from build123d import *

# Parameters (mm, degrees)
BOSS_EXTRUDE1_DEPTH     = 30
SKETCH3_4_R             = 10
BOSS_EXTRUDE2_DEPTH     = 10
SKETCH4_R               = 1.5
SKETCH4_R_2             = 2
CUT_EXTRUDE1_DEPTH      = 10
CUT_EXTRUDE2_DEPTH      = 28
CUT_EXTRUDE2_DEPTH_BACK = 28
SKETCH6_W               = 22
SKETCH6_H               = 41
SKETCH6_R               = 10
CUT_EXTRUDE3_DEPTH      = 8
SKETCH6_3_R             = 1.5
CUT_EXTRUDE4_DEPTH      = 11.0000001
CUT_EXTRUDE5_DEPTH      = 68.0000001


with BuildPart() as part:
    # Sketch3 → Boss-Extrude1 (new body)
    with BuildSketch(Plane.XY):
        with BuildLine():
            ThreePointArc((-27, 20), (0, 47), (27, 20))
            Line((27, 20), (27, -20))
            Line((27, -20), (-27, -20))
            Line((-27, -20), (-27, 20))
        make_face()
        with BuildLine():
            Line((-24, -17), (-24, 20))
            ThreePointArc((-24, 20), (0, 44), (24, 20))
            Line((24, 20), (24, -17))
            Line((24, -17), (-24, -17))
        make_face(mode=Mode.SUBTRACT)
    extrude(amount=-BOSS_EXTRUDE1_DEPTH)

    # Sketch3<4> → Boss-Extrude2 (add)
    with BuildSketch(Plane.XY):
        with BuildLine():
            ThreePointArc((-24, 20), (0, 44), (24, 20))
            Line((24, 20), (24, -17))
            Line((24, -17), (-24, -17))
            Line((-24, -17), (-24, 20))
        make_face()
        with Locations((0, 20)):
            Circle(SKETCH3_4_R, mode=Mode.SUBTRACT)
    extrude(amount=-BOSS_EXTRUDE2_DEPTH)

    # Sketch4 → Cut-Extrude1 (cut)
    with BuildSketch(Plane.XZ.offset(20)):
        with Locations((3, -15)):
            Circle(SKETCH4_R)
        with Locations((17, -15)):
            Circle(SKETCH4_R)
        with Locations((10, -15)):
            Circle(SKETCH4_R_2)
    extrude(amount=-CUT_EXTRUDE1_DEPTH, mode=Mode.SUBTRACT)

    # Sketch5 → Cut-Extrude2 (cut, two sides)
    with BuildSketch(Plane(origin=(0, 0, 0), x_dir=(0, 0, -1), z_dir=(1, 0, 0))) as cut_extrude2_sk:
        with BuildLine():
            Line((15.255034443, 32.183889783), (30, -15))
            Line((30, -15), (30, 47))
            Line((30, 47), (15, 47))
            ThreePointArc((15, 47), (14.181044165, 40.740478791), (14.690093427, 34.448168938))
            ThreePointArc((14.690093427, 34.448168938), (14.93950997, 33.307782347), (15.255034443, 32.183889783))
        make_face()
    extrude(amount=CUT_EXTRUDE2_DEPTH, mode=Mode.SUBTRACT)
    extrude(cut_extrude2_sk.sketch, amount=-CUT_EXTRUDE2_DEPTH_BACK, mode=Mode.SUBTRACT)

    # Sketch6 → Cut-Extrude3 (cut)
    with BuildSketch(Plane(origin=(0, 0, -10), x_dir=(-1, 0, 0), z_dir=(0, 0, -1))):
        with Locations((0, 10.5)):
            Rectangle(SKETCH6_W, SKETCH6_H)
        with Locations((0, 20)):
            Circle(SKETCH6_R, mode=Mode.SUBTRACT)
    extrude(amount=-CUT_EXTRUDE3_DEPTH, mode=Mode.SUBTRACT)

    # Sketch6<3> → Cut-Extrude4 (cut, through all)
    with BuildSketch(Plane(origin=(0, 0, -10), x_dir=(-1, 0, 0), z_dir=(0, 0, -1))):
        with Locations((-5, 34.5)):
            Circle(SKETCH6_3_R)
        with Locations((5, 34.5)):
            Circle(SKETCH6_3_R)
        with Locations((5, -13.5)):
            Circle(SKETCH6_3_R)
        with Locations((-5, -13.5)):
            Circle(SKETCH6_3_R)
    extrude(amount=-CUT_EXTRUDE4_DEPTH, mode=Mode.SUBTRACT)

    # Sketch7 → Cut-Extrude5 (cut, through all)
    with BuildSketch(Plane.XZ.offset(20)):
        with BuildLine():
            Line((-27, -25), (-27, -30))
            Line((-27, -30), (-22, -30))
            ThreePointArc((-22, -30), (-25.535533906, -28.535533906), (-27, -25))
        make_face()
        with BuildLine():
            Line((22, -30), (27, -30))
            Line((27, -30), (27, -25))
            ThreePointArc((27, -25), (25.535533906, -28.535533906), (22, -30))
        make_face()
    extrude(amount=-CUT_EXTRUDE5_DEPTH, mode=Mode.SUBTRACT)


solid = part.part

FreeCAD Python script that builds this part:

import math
import FreeCAD as App
import Part
import Sketcher
from FreeCAD import Vector

doc = App.newDocument("Part")
body = doc.addObject("PartDesign::Body", "Body")

sketch1 = doc.addObject("Sketcher::SketchObject", "Sketch")
body.addObject(sketch1)
sketch1.AttachmentSupport = (doc.XY_Plane, [""])
sketch1.MapMode = "FlatFace"
sketch1.addGeometry(Part.ArcOfCircle(Part.Circle(Vector(0, 20, 0), Vector(0, 0, 1), 27), math.radians(0), math.radians(180)), False)
sketch1.addGeometry(Part.LineSegment(Vector(-27, 20, 0), Vector(-27, -20, 0)), False)
sketch1.addGeometry(Part.LineSegment(Vector(-27, -20, 0), Vector(27, -20, 0)), False)
sketch1.addGeometry(Part.LineSegment(Vector(27, -20, 0), Vector(27, 20, 0)), False)
sketch1.addGeometry(Part.LineSegment(Vector(-24, -17, 0), Vector(-24, 20, 0)), False)
sketch1.addGeometry(Part.ArcOfCircle(Part.Circle(Vector(0, 20, 0), Vector(0, 0, 1), 24), math.radians(0), math.radians(180)), False)
sketch1.addGeometry(Part.LineSegment(Vector(24, 20, 0), Vector(24, -17, 0)), False)
sketch1.addGeometry(Part.LineSegment(Vector(24, -17, 0), Vector(-24, -17, 0)), False)
sketch1.addConstraint(Sketcher.Constraint("Tangent", 0, 2, 1, 1))
sketch1.addConstraint(Sketcher.Constraint("Coincident", 1, 2, 2, 1))
sketch1.addConstraint(Sketcher.Constraint("Coincident", 2, 2, 3, 1))
sketch1.addConstraint(Sketcher.Constraint("Tangent", 3, 2, 0, 1))
sketch1.addConstraint(Sketcher.Constraint("Tangent", 4, 2, 5, 2))
sketch1.addConstraint(Sketcher.Constraint("Tangent", 5, 1, 6, 1))
sketch1.addConstraint(Sketcher.Constraint("Coincident", 6, 2, 7, 1))
sketch1.addConstraint(Sketcher.Constraint("Coincident", 7, 2, 4, 1))
sketch1.addConstraint(Sketcher.Constraint("Vertical", 1))
sketch1.addConstraint(Sketcher.Constraint("Horizontal", 2))
sketch1.addConstraint(Sketcher.Constraint("Vertical", 3))
sketch1.addConstraint(Sketcher.Constraint("Vertical", 4))
sketch1.addConstraint(Sketcher.Constraint("Vertical", 6))
sketch1.addConstraint(Sketcher.Constraint("Horizontal", 7))
sketch1.addConstraint(Sketcher.Constraint("Coincident", 5, 3, 0, 3))
sketch1.addConstraint(Sketcher.Constraint("Symmetric", 0, 2, 2, 2, -1, 1))
sketch1.addConstraint(Sketcher.Constraint("Radius", 0, 27.0))
sketch1.addConstraint(Sketcher.Constraint("Radius", 5, 24.0))
sketch1.addConstraint(Sketcher.Constraint("DistanceY", 1, 2, 1, 1, 40.0))
sketch1.addConstraint(Sketcher.Constraint("DistanceY", 4, 1, 4, 2, 37.0))
pad1 = doc.addObject("PartDesign::Pad", "Pad")
body.addObject(pad1)
pad1.Profile = sketch1
pad1.Length = 30
pad1.Reversed = True

sketch2 = doc.addObject("Sketcher::SketchObject", "Sketch001")
body.addObject(sketch2)
sketch2.AttachmentSupport = (doc.XY_Plane, [""])
sketch2.MapMode = "FlatFace"
sketch2.addGeometry(Part.ArcOfCircle(Part.Circle(Vector(0, 20, 0), Vector(0, 0, 1), 24), math.radians(0), math.radians(180)), False)
sketch2.addGeometry(Part.LineSegment(Vector(-24, 20, 0), Vector(-24, -17, 0)), False)
sketch2.addGeometry(Part.LineSegment(Vector(-24, -17, 0), Vector(24, -17, 0)), False)
sketch2.addGeometry(Part.LineSegment(Vector(24, -17, 0), Vector(24, 20, 0)), False)
sketch2.addGeometry(Part.Circle(Vector(0, 20, 0), Vector(0, 0, 1), 10), False)
sketch2.addConstraint(Sketcher.Constraint("Tangent", 0, 2, 1, 1))
sketch2.addConstraint(Sketcher.Constraint("Coincident", 1, 2, 2, 1))
sketch2.addConstraint(Sketcher.Constraint("Coincident", 2, 2, 3, 1))
sketch2.addConstraint(Sketcher.Constraint("Tangent", 3, 2, 0, 1))
sketch2.addConstraint(Sketcher.Constraint("Vertical", 1))
sketch2.addConstraint(Sketcher.Constraint("Horizontal", 2))
sketch2.addConstraint(Sketcher.Constraint("Vertical", 3))
sketch2.addConstraint(Sketcher.Constraint("Coincident", 4, 3, 0, 3))
sketch2.addConstraint(Sketcher.Constraint("PointOnObject", 0, 3, -2))
sketch2.addConstraint(Sketcher.Constraint("Diameter", 4, 20.0))
sketch2.addConstraint(Sketcher.Constraint("Radius", 0, 24.0))
sketch2.addConstraint(Sketcher.Constraint("DistanceY", 1, 2, 1, 1, 37.0))
sketch2.addConstraint(Sketcher.Constraint("DistanceY", -1, 1, 0, 3, 20.0))
pad2 = doc.addObject("PartDesign::Pad", "Pad001")
body.addObject(pad2)
pad2.Profile = sketch2
pad2.Length = 10
pad2.Reversed = True

sketch3 = doc.addObject("Sketcher::SketchObject", "Sketch002")
body.addObject(sketch3)
sketch3.AttachmentSupport = (doc.XZ_Plane, [""])
sketch3.MapMode = "FlatFace"
sketch3.AttachmentOffset = App.Placement(Vector(0, 0, 20), App.Rotation())
sketch3.addGeometry(Part.Circle(Vector(3, -15, 0), Vector(0, 0, 1), 1.5), False)
sketch3.addGeometry(Part.Circle(Vector(17, -15, 0), Vector(0, 0, 1), 1.5), False)
sketch3.addGeometry(Part.Circle(Vector(10, -15, 0), Vector(0, 0, 1), 2), False)
sketch3.addConstraint(Sketcher.Constraint("Equal", 0, 1))
sketch3.addConstraint(Sketcher.Constraint("Horizontal", 0, 3, 1, 3))
sketch3.addConstraint(Sketcher.Constraint("Horizontal", 1, 3, 2, 3))
sketch3.addConstraint(Sketcher.Constraint("Diameter", 0, 3.0))
sketch3.addConstraint(Sketcher.Constraint("Diameter", 2, 4.0))
sketch3.addConstraint(Sketcher.Constraint("DistanceX", -1, 1, 0, 3, 3.0))
sketch3.addConstraint(Sketcher.Constraint("DistanceY", 0, 3, -1, 1, 15.0))
sketch3.addConstraint(Sketcher.Constraint("DistanceX", -1, 1, 1, 3, 17.0))
sketch3.addConstraint(Sketcher.Constraint("DistanceX", -1, 1, 2, 3, 10.0))
pocket1 = doc.addObject("PartDesign::Pocket", "Pocket")
body.addObject(pocket1)
pocket1.Profile = sketch3
pocket1.Length = 10

sketch4 = doc.addObject("Sketcher::SketchObject", "Sketch003")
body.addObject(sketch4)
sketch4.AttachmentSupport = (doc.YZ_Plane, [""])
sketch4.MapMode = "FlatFace"
sketch4.addGeometry(Part.LineSegment(Vector(32.2, -15.3, 0), Vector(-15, -30, 0)), False)
sketch4.addGeometry(Part.LineSegment(Vector(-15, -30, 0), Vector(47, -30, 0)), False)
sketch4.addGeometry(Part.LineSegment(Vector(47, -30, 0), Vector(47, -15, 0)), False)
sketch4.addGeometry(Part.ArcOfCircle(Part.Circle(Vector(40, -44.2, 0), Vector(0, 0, 1), 30), math.radians(77), math.radians(101)), False)
sketch4.addGeometry(Part.ArcOfCircle(Part.Circle(Vector(38.1, -34.3, 0), Vector(0, 0, 1), 20), math.radians(100.66), math.radians(107.35)), False)
sketch4.addConstraint(Sketcher.Constraint("Coincident", 0, 2, 1, 1))
sketch4.addConstraint(Sketcher.Constraint("Coincident", 1, 2, 2, 1))
sketch4.addConstraint(Sketcher.Constraint("Coincident", 2, 2, 3, 1))
sketch4.addConstraint(Sketcher.Constraint("Tangent", 3, 2, 4, 1))
sketch4.addConstraint(Sketcher.Constraint("Tangent", 4, 2, 0, 1))
sketch4.addConstraint(Sketcher.Constraint("Horizontal", 1))
sketch4.addConstraint(Sketcher.Constraint("Vertical", 2))
sketch4.addConstraint(Sketcher.Constraint("Radius", 3, 30.0))
sketch4.addConstraint(Sketcher.Constraint("Radius", 4, 20.0))
sketch4.addConstraint(Sketcher.Constraint("DistanceX", 1, 1, 1, 2, 62.0))
sketch4.addConstraint(Sketcher.Constraint("DistanceY", 2, 1, 2, 2, 15.0))
sketch4.addConstraint(Sketcher.Constraint("DistanceX", -1, 1, 3, 3, 40.0))
sketch4.addConstraint(Sketcher.Constraint("DistanceX", 0, 2, -1, 1, 15.0))
sketch4.addConstraint(Sketcher.Constraint("DistanceY", 0, 2, -1, 1, 30.0))
sketch4.addConstraint(Sketcher.Constraint("DistanceX", -1, 1, 4, 3, 38.14939))
pocket2 = doc.addObject("PartDesign::Pocket", "Pocket001")
body.addObject(pocket2)
pocket2.Profile = sketch4
pocket2.Type = "ThroughAll"
pocket2.Midplane = True

sketch5 = doc.addObject("Sketcher::SketchObject", "Sketch004")
body.addObject(sketch5)
sketch5.AttachmentSupport = (doc.XY_Plane, [""])
sketch5.MapMode = "FlatFace"
sketch5.AttachmentOffset = App.Placement(Vector(0, 0, -10), App.Rotation())
sketch5.addGeometry(Part.LineSegment(Vector(11, 31, 0), Vector(11, -10, 0)), False)
sketch5.addGeometry(Part.LineSegment(Vector(11, -10, 0), Vector(-11, -10, 0)), False)
sketch5.addGeometry(Part.LineSegment(Vector(-11, -10, 0), Vector(-11, 31, 0)), False)
sketch5.addGeometry(Part.LineSegment(Vector(-11, 31, 0), Vector(11, 31, 0)), False)
sketch5.addGeometry(Part.Circle(Vector(0, 20, 0), Vector(0, 0, 1), 10), False)
sketch5.addConstraint(Sketcher.Constraint("Coincident", 0, 2, 1, 1))
sketch5.addConstraint(Sketcher.Constraint("Coincident", 1, 2, 2, 1))
sketch5.addConstraint(Sketcher.Constraint("Coincident", 2, 2, 3, 1))
sketch5.addConstraint(Sketcher.Constraint("Coincident", 3, 2, 0, 1))
sketch5.addConstraint(Sketcher.Constraint("Vertical", 0))
sketch5.addConstraint(Sketcher.Constraint("Horizontal", 1))
sketch5.addConstraint(Sketcher.Constraint("Vertical", 2))
sketch5.addConstraint(Sketcher.Constraint("Horizontal", 3))
sketch5.addConstraint(Sketcher.Constraint("PointOnObject", 4, 3, -2))
sketch5.addConstraint(Sketcher.Constraint("Diameter", 4, 20.0))
sketch5.addConstraint(Sketcher.Constraint("DistanceX", 1, 2, 1, 1, 22.0))
sketch5.addConstraint(Sketcher.Constraint("DistanceY", 0, 2, 0, 1, 41.0))
sketch5.addConstraint(Sketcher.Constraint("DistanceY", -1, 1, 4, 3, 20.0))
sketch5.addConstraint(Sketcher.Constraint("DistanceX", -1, 1, 0, 2, 11.0))
sketch5.addConstraint(Sketcher.Constraint("DistanceY", 0, 2, -1, 1, 10.0))
pocket3 = doc.addObject("PartDesign::Pocket", "Pocket002")
body.addObject(pocket3)
pocket3.Profile = sketch5
pocket3.Length = 8
pocket3.Reversed = True

sketch6 = doc.addObject("Sketcher::SketchObject", "Sketch005")
body.addObject(sketch6)
sketch6.AttachmentSupport = (doc.XY_Plane, [""])
sketch6.MapMode = "FlatFace"
sketch6.AttachmentOffset = App.Placement(Vector(0, 0, -10), App.Rotation())
sketch6.addGeometry(Part.Circle(Vector(5, 34.5, 0), Vector(0, 0, 1), 1.5), False)
sketch6.addGeometry(Part.Circle(Vector(-5, 34.5, 0), Vector(0, 0, 1), 1.5), False)
sketch6.addGeometry(Part.Circle(Vector(-5, -13.5, 0), Vector(0, 0, 1), 1.5), False)
sketch6.addGeometry(Part.Circle(Vector(5, -13.5, 0), Vector(0, 0, 1), 1.5), False)
sketch6.addConstraint(Sketcher.Constraint("Equal", 0, 1))
sketch6.addConstraint(Sketcher.Constraint("Equal", 1, 2))
sketch6.addConstraint(Sketcher.Constraint("Equal", 2, 3))
sketch6.addConstraint(Sketcher.Constraint("Symmetric", 0, 3, 1, 3, -2))
sketch6.addConstraint(Sketcher.Constraint("Symmetric", 2, 3, 3, 3, -2))
sketch6.addConstraint(Sketcher.Constraint("Vertical", 1, 3, 2, 3))
sketch6.addConstraint(Sketcher.Constraint("Diameter", 0, 3.0))
sketch6.addConstraint(Sketcher.Constraint("DistanceX", -1, 1, 0, 3, 5.0))
sketch6.addConstraint(Sketcher.Constraint("DistanceY", 2, 3, 1, 3, 48.0))
sketch6.addConstraint(Sketcher.Constraint("DistanceY", -1, 1, 0, 3, 34.5))
pocket4 = doc.addObject("PartDesign::Pocket", "Pocket003")
body.addObject(pocket4)
pocket4.Profile = sketch6
pocket4.Type = "ThroughAll"
pocket4.Reversed = True

sketch7 = doc.addObject("Sketcher::SketchObject", "Sketch006")
body.addObject(sketch7)
sketch7.AttachmentSupport = (doc.XZ_Plane, [""])
sketch7.MapMode = "FlatFace"
sketch7.AttachmentOffset = App.Placement(Vector(0, 0, 20), App.Rotation())
sketch7.addGeometry(Part.LineSegment(Vector(-27, -25, 0), Vector(-27, -30, 0)), False)
sketch7.addGeometry(Part.LineSegment(Vector(-27, -30, 0), Vector(-22, -30, 0)), False)
sketch7.addGeometry(Part.ArcOfCircle(Part.Circle(Vector(-22, -25, 0), Vector(0, 0, 1), 5), math.radians(180), math.radians(270)), False)
sketch7.addGeometry(Part.LineSegment(Vector(22, -30, 0), Vector(27, -30, 0)), False)
sketch7.addGeometry(Part.LineSegment(Vector(27, -30, 0), Vector(27, -25, 0)), False)
sketch7.addGeometry(Part.ArcOfCircle(Part.Circle(Vector(22, -25, 0), Vector(0, 0, 1), 5), math.radians(-90), math.radians(0)), False)
sketch7.addConstraint(Sketcher.Constraint("Coincident", 0, 2, 1, 1))
sketch7.addConstraint(Sketcher.Constraint("Tangent", 1, 2, 2, 2))
sketch7.addConstraint(Sketcher.Constraint("Tangent", 2, 1, 0, 1))
sketch7.addConstraint(Sketcher.Constraint("Coincident", 3, 2, 4, 1))
sketch7.addConstraint(Sketcher.Constraint("Tangent", 4, 2, 5, 2))
sketch7.addConstraint(Sketcher.Constraint("Tangent", 5, 1, 3, 1))
sketch7.addConstraint(Sketcher.Constraint("Vertical", 0))
sketch7.addConstraint(Sketcher.Constraint("Horizontal", 1))
sketch7.addConstraint(Sketcher.Constraint("Horizontal", 3))
sketch7.addConstraint(Sketcher.Constraint("Vertical", 4))
sketch7.addConstraint(Sketcher.Constraint("Equal", 2, 5))
sketch7.addConstraint(Sketcher.Constraint("Symmetric", 2, 3, 5, 3, -2))
sketch7.addConstraint(Sketcher.Constraint("Radius", 2, 5.0))
sketch7.addConstraint(Sketcher.Constraint("DistanceX", 2, 3, -1, 1, 22.0))
sketch7.addConstraint(Sketcher.Constraint("DistanceY", 2, 3, -1, 1, 25.0))
pocket5 = doc.addObject("PartDesign::Pocket", "Pocket004")
body.addObject(pocket5)
pocket5.Profile = sketch7
pocket5.Type = "ThroughAll"

doc.recompute()
